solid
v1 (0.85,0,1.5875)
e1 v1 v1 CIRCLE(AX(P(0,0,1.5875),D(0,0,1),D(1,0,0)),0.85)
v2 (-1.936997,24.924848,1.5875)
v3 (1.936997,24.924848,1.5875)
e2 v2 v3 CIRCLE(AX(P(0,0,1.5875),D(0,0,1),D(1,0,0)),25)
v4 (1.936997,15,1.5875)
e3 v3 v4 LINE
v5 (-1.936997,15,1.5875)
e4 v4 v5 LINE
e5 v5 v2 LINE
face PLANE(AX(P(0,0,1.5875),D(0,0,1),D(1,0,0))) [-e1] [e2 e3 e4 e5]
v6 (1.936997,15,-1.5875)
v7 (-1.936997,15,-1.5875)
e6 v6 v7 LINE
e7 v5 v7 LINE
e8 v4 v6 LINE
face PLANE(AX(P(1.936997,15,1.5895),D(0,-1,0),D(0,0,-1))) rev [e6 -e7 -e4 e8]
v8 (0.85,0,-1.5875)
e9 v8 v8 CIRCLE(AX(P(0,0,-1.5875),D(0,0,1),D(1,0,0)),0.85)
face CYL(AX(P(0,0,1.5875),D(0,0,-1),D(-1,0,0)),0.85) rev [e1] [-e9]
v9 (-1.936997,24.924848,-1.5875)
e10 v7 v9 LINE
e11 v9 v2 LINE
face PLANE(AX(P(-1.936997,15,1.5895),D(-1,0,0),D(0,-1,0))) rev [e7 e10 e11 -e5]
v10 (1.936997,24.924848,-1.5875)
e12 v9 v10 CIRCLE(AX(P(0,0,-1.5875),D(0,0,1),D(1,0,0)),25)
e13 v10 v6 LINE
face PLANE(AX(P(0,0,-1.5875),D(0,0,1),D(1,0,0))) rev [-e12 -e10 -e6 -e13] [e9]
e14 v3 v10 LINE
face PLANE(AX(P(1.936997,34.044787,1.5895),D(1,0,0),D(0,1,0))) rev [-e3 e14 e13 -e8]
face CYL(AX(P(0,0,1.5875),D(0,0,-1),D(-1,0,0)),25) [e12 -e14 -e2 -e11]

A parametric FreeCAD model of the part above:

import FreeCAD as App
import Part
import Sketcher
from FreeCAD import Vector
Q = App.Units.Quantity


def add_polygon(sketch, points):
    """Adds a closed chain of lines whose ends are joined by coincident constraints."""
    first, n = sketch.GeometryCount, len(points)
    for a, b in zip(points, points[1:] + points[:1]):
        sketch.addGeometry(Part.LineSegment(App.Vector(*a, 0), App.Vector(*b, 0)), False)
    for i in range(n):
        sketch.addConstraint(Sketcher.Constraint("Coincident", first + i, 2, first + (i + 1) % n, 1))

doc = App.newDocument("Part")
params = doc.addObject("Spreadsheet::Sheet", "Params")
for row, (alias, value) in enumerate([
    ("sketch1_diameter", "50 mm"),
    ("sketch1_diameter2", "1.7 mm"),
    ("pad1_length", "3.175 mm"),
], start=1):
    params.set(f"A{row}", alias)
    params.set(f"B{row}", "=" + value)
    params.setAlias(f"B{row}", alias)

body = doc.addObject("PartDesign::Body", "Body")

# Sketch on XY plane
sketch1 = body.newObject("Sketcher::SketchObject", "Sketch")
sketch1.AttachmentSupport = (doc.getObject("XY_Plane"), [""])
sketch1.MapMode = "FlatFace"
sketch1.addGeometry(Part.Circle(Vector(0, 0, 0), Vector(0, 0, 1), 25), False)
sketch1.addGeometry(Part.Circle(Vector(0, 0, 0), Vector(0, 0, 1), 0.85), False)
sketch1.addConstraint(Sketcher.Constraint("Coincident", 0, 3, -1, 1))
sketch1.addConstraint(Sketcher.Constraint("Coincident", 1, 3, -1, 1))
sketch1.addConstraint(Sketcher.Constraint("Diameter", 0, Q("50 mm")))
sketch1.addConstraint(Sketcher.Constraint("Diameter", 1, Q("1.7 mm")))
sketch1.setExpression("Constraints[2]", "Params.sketch1_diameter")
sketch1.setExpression("Constraints[3]", "Params.sketch1_diameter2")
pad1 = body.newObject("PartDesign::Pad", "Pad")
pad1.Profile = sketch1
pad1.setExpression("Length", "Params.pad1_length")
pad1.Midplane = True

# Sketch on XY plane
sketch2 = body.newObject("Sketcher::SketchObject", "Sketch001")
sketch2.AttachmentSupport = (doc.getObject("XY_Plane"), [""])
sketch2.MapMode = "FlatFace"
sketch2.AttachmentOffset = App.Placement(Vector(0, 0, -1.5875), App.Rotation())
add_polygon(sketch2, [(1.936997, 34.044787), (1.936997, 15), (-1.936997, 15), (-1.936997, 34.044787)])  # lines 0-3
sketch2.addConstraint(Sketcher.Constraint("Vertical", 0))
sketch2.addConstraint(Sketcher.Constraint("Horizontal", 1))
sketch2.addConstraint(Sketcher.Constraint("Vertical", 2))
sketch2.addConstraint(Sketcher.Constraint("Horizontal", 3))
sketch2.addConstraint(Sketcher.Constraint("DistanceY", -1, 1, 0, 2, Q("15 mm")))
sketch2.addConstraint(Sketcher.Constraint("DistanceX", 1, 2, 1, 1, Q("3.873994 mm")))
sketch2.addConstraint(Sketcher.Constraint("DistanceY", 0, 2, 0, 1, Q("19.044787 mm")))
sketch2.addConstraint(Sketcher.Constraint("DistanceX", -1, 1, 0, 2, Q("1.936997 mm")))
pocket1 = body.newObject("PartDesign::Pocket", "Pocket")
pocket1.Profile = sketch2
pocket1.Type = "UpToFirst"
pocket1.Reversed = True

doc.recompute()
